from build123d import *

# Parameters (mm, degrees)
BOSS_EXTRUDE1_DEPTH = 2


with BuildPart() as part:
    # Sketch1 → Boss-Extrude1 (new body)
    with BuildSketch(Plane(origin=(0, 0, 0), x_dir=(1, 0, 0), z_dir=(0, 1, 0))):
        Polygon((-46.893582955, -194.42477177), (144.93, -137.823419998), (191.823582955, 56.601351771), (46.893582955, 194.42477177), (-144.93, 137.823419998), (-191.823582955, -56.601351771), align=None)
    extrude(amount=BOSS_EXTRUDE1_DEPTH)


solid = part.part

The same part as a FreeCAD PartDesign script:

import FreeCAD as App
import Part
import Sketcher
Q = App.Units.Quantity

doc = App.newDocument("Part")
params = doc.addObject("Spreadsheet::Sheet", "Params")
for row, (alias, value) in enumerate([
    ("sketch1_length", "200 mm"),
    ("pad1_length", "2 mm"),
], start=1):
    params.set(f"A{row}", alias)
    params.set(f"B{row}", "=" + value)
    params.setAlias(f"B{row}", alias)

body = doc.addObject("PartDesign::Body", "Body")

sketch1 = body.newObject("Sketcher::SketchObject", "Sketch")
sketch1.AttachmentSupport = (doc.getObject("XZ_Plane"), [""])
sketch1.MapMode = "FlatFace"
sketch1.addGeometry([
    Part.LineSegment(App.Vector(-46.893583, 194.424772, 0), App.Vector(144.93, 137.82342, 0)),
    Part.LineSegment(App.Vector(144.93, 137.82342, 0), App.Vector(191.823583, -56.601352, 0)),
    Part.LineSegment(App.Vector(191.823583, -56.601352, 0), App.Vector(46.893583, -194.424772, 0)),
    Part.LineSegment(App.Vector(46.893583, -194.424772, 0), App.Vector(-144.93, -137.82342, 0)),
    Part.LineSegment(App.Vector(-144.93, -137.82342, 0), App.Vector(-191.823583, 56.601352, 0)),
    Part.LineSegment(App.Vector(-191.823583, 56.601352, 0), App.Vector(-46.893583, 194.424772, 0)),
], False)
sketch1.addConstraint([
    Sketcher.Constraint("Coincident", 0, 2, 1, 1),
    Sketcher.Constraint("Coincident", 1, 2, 2, 1),
    Sketcher.Constraint("Coincident", 2, 2, 3, 1),
    Sketcher.Constraint("Coincident", 3, 2, 4, 1),
    Sketcher.Constraint("Coincident", 4, 2, 5, 1),
    Sketcher.Constraint("Coincident", 5, 2, 0, 1),
    Sketcher.Constraint("Symmetric", 0, 2, 3, 2, -1, 1),
    Sketcher.Constraint("Symmetric", 1, 2, 4, 2, -1, 1),
    Sketcher.Constraint("Symmetric", 2, 2, 5, 2, -1, 1),
    Sketcher.Constraint("Equal", 0, 1),
    Sketcher.Constraint("Equal", 1, 2),
    Sketcher.Constraint("Distance", 0, Q("200 mm")),
    Sketcher.Constraint("DistanceX", -1, 1, 0, 2, Q("144.93 mm")),
    Sketcher.Constraint("DistanceX", 2, 2, 1, 2, Q("144.93 mm")),
    Sketcher.Constraint("DistanceY", -1, 1, 0, 2, Q("137.82342 mm")),
])
sketch1.setExpression("Constraints[11]", "Params.sketch1_length")
pad1 = body.newObject("PartDesign::Pad", "Pad")
pad1.Profile = sketch1
pad1.setExpression("Length", "Params.pad1_length")
pad1.Reversed = True

doc.recompute()
